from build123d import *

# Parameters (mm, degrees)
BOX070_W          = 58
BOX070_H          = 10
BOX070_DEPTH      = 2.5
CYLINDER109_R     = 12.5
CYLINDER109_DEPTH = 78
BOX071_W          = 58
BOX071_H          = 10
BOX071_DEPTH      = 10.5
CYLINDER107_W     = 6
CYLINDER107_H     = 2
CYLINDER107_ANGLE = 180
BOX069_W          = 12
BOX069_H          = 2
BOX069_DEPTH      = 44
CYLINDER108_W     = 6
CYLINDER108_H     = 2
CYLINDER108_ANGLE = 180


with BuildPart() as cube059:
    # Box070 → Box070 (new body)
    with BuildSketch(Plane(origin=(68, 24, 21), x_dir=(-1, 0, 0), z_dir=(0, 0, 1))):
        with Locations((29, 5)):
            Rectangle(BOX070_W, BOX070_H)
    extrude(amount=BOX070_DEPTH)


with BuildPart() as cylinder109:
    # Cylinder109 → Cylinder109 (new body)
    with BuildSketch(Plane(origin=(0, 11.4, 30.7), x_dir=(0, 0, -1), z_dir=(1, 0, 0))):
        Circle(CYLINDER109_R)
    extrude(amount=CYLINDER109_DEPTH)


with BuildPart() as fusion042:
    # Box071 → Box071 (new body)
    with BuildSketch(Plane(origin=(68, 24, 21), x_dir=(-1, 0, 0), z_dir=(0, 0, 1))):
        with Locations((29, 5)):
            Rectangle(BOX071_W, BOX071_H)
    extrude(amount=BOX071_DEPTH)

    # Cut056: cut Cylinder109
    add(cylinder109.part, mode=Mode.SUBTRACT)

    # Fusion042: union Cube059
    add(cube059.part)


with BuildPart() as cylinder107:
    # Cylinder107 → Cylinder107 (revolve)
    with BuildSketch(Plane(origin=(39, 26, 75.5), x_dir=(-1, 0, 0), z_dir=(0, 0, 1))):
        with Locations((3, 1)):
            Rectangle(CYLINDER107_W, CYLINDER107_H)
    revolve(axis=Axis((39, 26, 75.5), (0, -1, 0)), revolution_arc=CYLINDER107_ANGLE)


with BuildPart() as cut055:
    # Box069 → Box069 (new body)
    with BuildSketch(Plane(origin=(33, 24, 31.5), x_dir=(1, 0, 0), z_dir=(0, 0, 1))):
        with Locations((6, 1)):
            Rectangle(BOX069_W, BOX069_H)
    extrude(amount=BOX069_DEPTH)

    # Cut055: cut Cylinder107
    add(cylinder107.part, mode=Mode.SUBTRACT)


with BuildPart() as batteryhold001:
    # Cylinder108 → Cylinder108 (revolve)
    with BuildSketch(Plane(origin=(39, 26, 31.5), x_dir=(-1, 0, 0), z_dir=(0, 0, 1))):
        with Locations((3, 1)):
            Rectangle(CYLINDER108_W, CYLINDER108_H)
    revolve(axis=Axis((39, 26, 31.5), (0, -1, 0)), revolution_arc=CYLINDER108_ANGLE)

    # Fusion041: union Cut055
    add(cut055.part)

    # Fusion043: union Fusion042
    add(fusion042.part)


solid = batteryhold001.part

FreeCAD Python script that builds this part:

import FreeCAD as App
import Part
import Sketcher
from FreeCAD import Vector
Q = App.Units.Quantity


def add_polygon(sketch, points):
    """Adds a closed chain of lines whose ends are joined by coincident constraints."""
    first, n = sketch.GeometryCount, len(points)
    for a, b in zip(points, points[1:] + points[:1]):
        sketch.addGeometry(Part.LineSegment(App.Vector(*a, 0), App.Vector(*b, 0)), False)
    for i in range(n):
        sketch.addConstraint(Sketcher.Constraint("Coincident", first + i, 2, first + (i + 1) % n, 1))

doc = App.newDocument("Part")
body = doc.addObject("PartDesign::Body", "Body")

sketch1 = body.newObject("Sketcher::SketchObject", "Sketch")
sketch1.AttachmentSupport = (doc.getObject("XY_Plane"), [""])
sketch1.MapMode = "FlatFace"
sketch1.AttachmentOffset = App.Placement(Vector(0, 0, 21), App.Rotation())
add_polygon(sketch1, [(68, 14), (68, 24), (10, 24), (10, 14)])
sketch1.addConstraint(Sketcher.Constraint("Vertical", 0))
sketch1.addConstraint(Sketcher.Constraint("Horizontal", 1))
sketch1.addConstraint(Sketcher.Constraint("Vertical", 2))
sketch1.addConstraint(Sketcher.Constraint("Horizontal", 3))
sketch1.addConstraint(Sketcher.Constraint("DistanceX", 1, 2, 1, 1, Q("58 mm")))
sketch1.addConstraint(Sketcher.Constraint("DistanceY", 0, 1, 0, 2, Q("10 mm")))
sketch1.addConstraint(Sketcher.Constraint("DistanceX", -1, 1, 0, 2, Q("68 mm")))
sketch1.addConstraint(Sketcher.Constraint("DistanceY", -1, 1, 0, 2, Q("24 mm")))
pad1 = body.newObject("PartDesign::Pad", "Pad")
pad1.Profile = sketch1
pad1.Length = 2.5
body2 = doc.addObject("PartDesign::Body", "Body001")

sketch2 = body2.newObject("Sketcher::SketchObject", "Sketch001")
sketch2.AttachmentSupport = (doc.getObject("YZ_Plane001"), [""])
sketch2.MapMode = "FlatFace"
sketch2.addGeometry(Part.Circle(Vector(11, 31, 0), Vector(0, 0, 1), 12), False)
sketch2.addConstraint(Sketcher.Constraint("Diameter", 0, Q("25 mm")))
sketch2.addConstraint(Sketcher.Constraint("DistanceX", -1, 1, 0, 3, Q("11.4 mm")))
sketch2.addConstraint(Sketcher.Constraint("DistanceY", -1, 1, 0, 3, Q("30.7 mm")))
pad2 = body2.newObject("PartDesign::Pad", "Pad001")
pad2.Profile = sketch2
pad2.Length = 78
body3 = doc.addObject("PartDesign::Body", "Body002")

sketch3 = body3.newObject("Sketcher::SketchObject", "Sketch002")
sketch3.AttachmentSupport = (doc.getObject("XY_Plane002"), [""])
sketch3.MapMode = "FlatFace"
sketch3.AttachmentOffset = App.Placement(Vector(0, 0, 21), App.Rotation())
add_polygon(sketch3, [(68, 14), (68, 24), (10, 24), (10, 14)])
sketch3.addConstraint(Sketcher.Constraint("Vertical", 0))
sketch3.addConstraint(Sketcher.Constraint("Horizontal", 1))
sketch3.addConstraint(Sketcher.Constraint("Vertical", 2))
sketch3.addConstraint(Sketcher.Constraint("Horizontal", 3))
sketch3.addConstraint(Sketcher.Constraint("DistanceX", 1, 2, 1, 1, Q("58 mm")))
sketch3.addConstraint(Sketcher.Constraint("DistanceY", 0, 1, 0, 2, Q("10 mm")))
sketch3.addConstraint(Sketcher.Constraint("DistanceX", -1, 1, 0, 2, Q("68 mm")))
sketch3.addConstraint(Sketcher.Constraint("DistanceY", -1, 1, 0, 2, Q("24 mm")))
pad3 = body3.newObject("PartDesign::Pad", "Pad002")
pad3.Profile = sketch3
pad3.Length = 10.5
doc.recompute()

boolean = body3.newObject("PartDesign::Boolean", "Boolean")
boolean.Type = "Cut"
boolean.addObjects([body2])
doc.recompute()

boolean2 = body3.newObject("PartDesign::Boolean", "Boolean001")
boolean2.Type = "Fuse"
boolean2.addObjects([body])
body4 = doc.addObject("PartDesign::Body", "Body003")

sketch4 = body4.newObject("Sketcher::SketchObject", "Sketch003")
sketch4.AttachmentSupport = (doc.getObject("XY_Plane003"), [""])
sketch4.MapMode = "FlatFace"
sketch4.AttachmentOffset = App.Placement(Vector(0, 0, 75.5), App.Rotation())
add_polygon(sketch4, [(39, 24), (39, 26), (33, 26), (33, 24)])
sketch4.addGeometry(Part.LineSegment(Vector(39, 26, 0), Vector(39, 24, 0)), True)
sketch4.addConstraint(Sketcher.Constraint("Vertical", 0))
sketch4.addConstraint(Sketcher.Constraint("Horizontal", 1))
sketch4.addConstraint(Sketcher.Constraint("Vertical", 2))
sketch4.addConstraint(Sketcher.Constraint("Horizontal", 3))
sketch4.addConstraint(Sketcher.Constraint("Vertical", 4))
sketch4.addConstraint(Sketcher.Constraint("Coincident", 4, 1, 0, 2))
sketch4.addConstraint(Sketcher.Constraint("Horizontal", 2, 2, 4, 2))
sketch4.addConstraint(Sketcher.Constraint("DistanceX", 1, 2, 1, 1, Q("6 mm")))
sketch4.addConstraint(Sketcher.Constraint("DistanceY", 0, 1, 0, 2, Q("2 mm")))
sketch4.addConstraint(Sketcher.Constraint("DistanceX", -1, 1, 0, 2, Q("39 mm")))
sketch4.addConstraint(Sketcher.Constraint("DistanceY", -1, 1, 0, 2, Q("26 mm")))
revolution = body4.newObject("PartDesign::Revolution", "Revolution")
revolution.Profile = sketch4
revolution.ReferenceAxis = (sketch4, ["Axis0"])
revolution.Angle = 180
body5 = doc.addObject("PartDesign::Body", "Body004")

sketch5 = body5.newObject("Sketcher::SketchObject", "Sketch004")
sketch5.AttachmentSupport = (doc.getObject("XY_Plane004"), [""])
sketch5.MapMode = "FlatFace"
sketch5.AttachmentOffset = App.Placement(Vector(0, 0, 31.5), App.Rotation())
add_polygon(sketch5, [(33, 26), (33, 24), (45, 24), (45, 26)])
sketch5.addConstraint(Sketcher.Constraint("Vertical", 0))
sketch5.addConstraint(Sketcher.Constraint("Horizontal", 1))
sketch5.addConstraint(Sketcher.Constraint("Vertical", 2))
sketch5.addConstraint(Sketcher.Constraint("Horizontal", 3))
sketch5.addConstraint(Sketcher.Constraint("DistanceX", 1, 1, 1, 2, Q("12 mm")))
sketch5.addConstraint(Sketcher.Constraint("DistanceY", 0, 2, 0, 1, Q("2 mm")))
sketch5.addConstraint(Sketcher.Constraint("DistanceX", -1, 1, 0, 2, Q("33 mm")))
sketch5.addConstraint(Sketcher.Constraint("DistanceY", -1, 1, 0, 2, Q("24 mm")))
pad4 = body5.newObject("PartDesign::Pad", "Pad003")
pad4.Profile = sketch5
pad4.Length = 44
doc.recompute()

boolean3 = body5.newObject("PartDesign::Boolean", "Boolean002")
boolean3.Type = "Cut"
boolean3.addObjects([body4])
body6 = doc.addObject("PartDesign::Body", "Body005")

sketch6 = body6.newObject("Sketcher::SketchObject", "Sketch005")
sketch6.AttachmentSupport = (doc.getObject("XY_Plane005"), [""])
sketch6.MapMode = "FlatFace"
sketch6.AttachmentOffset = App.Placement(Vector(0, 0, 31.5), App.Rotation())
add_polygon(sketch6, [(39, 24), (39, 26), (33, 26), (33, 24)])
sketch6.addGeometry(Part.LineSegment(Vector(39, 26, 0), Vector(39, 24, 0)), True)
sketch6.addConstraint(Sketcher.Constraint("Vertical", 0))
sketch6.addConstraint(Sketcher.Constraint("Horizontal", 1))
sketch6.addConstraint(Sketcher.Constraint("Vertical", 2))
sketch6.addConstraint(Sketcher.Constraint("Horizontal", 3))
sketch6.addConstraint(Sketcher.Constraint("Vertical", 4))
sketch6.addConstraint(Sketcher.Constraint("Coincident", 4, 1, 0, 2))
sketch6.addConstraint(Sketcher.Constraint("Horizontal", 2, 2, 4, 2))
sketch6.addConstraint(Sketcher.Constraint("DistanceX", 1, 2, 1, 1, Q("6 mm")))
sketch6.addConstraint(Sketcher.Constraint("DistanceY", 0, 1, 0, 2, Q("2 mm")))
sketch6.addConstraint(Sketcher.Constraint("DistanceX", -1, 1, 0, 2, Q("39 mm")))
sketch6.addConstraint(Sketcher.Constraint("DistanceY", -1, 1, 0, 2, Q("26 mm")))
revolution2 = body6.newObject("PartDesign::Revolution", "Revolution001")
revolution2.Profile = sketch6
revolution2.ReferenceAxis = (sketch6, ["Axis0"])
revolution2.Angle = 180
doc.recompute()

boolean4 = body6.newObject("PartDesign::Boolean", "Boolean003")
boolean4.Type = "Fuse"
boolean4.addObjects([body5])
doc.recompute()

boolean5 = body6.newObject("PartDesign::Boolean", "Boolean004")
boolean5.Type = "Fuse"
boolean5.addObjects([body3])

doc.recompute()
